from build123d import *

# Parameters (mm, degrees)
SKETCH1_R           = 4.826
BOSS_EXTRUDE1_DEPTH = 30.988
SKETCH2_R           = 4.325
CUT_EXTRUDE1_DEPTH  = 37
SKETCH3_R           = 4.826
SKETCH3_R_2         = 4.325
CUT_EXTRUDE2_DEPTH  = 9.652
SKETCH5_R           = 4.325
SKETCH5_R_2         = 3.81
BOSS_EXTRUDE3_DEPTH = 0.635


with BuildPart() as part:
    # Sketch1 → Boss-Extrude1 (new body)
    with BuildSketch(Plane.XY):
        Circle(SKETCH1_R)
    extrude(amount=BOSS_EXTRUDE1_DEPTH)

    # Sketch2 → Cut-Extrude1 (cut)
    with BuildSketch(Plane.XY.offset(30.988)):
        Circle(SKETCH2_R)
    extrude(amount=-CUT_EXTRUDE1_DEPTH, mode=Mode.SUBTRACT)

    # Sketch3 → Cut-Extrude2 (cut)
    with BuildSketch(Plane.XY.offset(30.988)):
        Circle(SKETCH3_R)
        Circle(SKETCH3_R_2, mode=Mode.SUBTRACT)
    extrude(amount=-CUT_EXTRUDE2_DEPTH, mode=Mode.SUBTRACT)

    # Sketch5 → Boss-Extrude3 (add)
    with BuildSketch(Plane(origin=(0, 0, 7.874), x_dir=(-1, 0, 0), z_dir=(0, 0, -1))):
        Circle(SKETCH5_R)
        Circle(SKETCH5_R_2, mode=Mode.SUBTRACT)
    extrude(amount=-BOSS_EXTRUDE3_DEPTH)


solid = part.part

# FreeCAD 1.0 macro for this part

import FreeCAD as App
import Part
import Sketcher

V = App.Vector
Q = App.Units.Quantity

doc = App.newDocument("Part")
body = doc.addObject("PartDesign::Body", "Body")

sketch1 = doc.addObject("Sketcher::SketchObject", "Sketch")
body.addObject(sketch1)
sketch1.AttachmentSupport = (doc.XY_Plane, [""])
sketch1.MapMode = "FlatFace"
sketch1.addGeometry(Part.Circle(V(0, 0, 0), V(0, 0, 1), 4.826), False)
sketch1.addConstraint(Sketcher.Constraint("Coincident", 0, 3, -1, 1))
sketch1.addConstraint(Sketcher.Constraint("Diameter", 0, Q("0.38 in")))
pad1 = doc.addObject("PartDesign::Pad", "Pad")
body.addObject(pad1)
pad1.Profile = sketch1
pad1.Length = Q("1.22 in")

sketch2 = doc.addObject("Sketcher::SketchObject", "Sketch001")
body.addObject(sketch2)
sketch2.AttachmentSupport = (doc.XY_Plane, [""])
sketch2.MapMode = "FlatFace"
sketch2.AttachmentOffset = App.Placement(V(0, 0, 1.22 * 25.4), App.Rotation())
sketch2.addGeometry(Part.Circle(V(0, 0, 0), V(0, 0, 1), 4.325), False)
sketch2.addConstraint(Sketcher.Constraint("Coincident", 0, 3, -1, 1))
sketch2.addConstraint(Sketcher.Constraint("Diameter", 0, 8.65))
pocket1 = doc.addObject("PartDesign::Pocket", "Pocket")
body.addObject(pocket1)
pocket1.Profile = sketch2
pocket1.Length = 37

sketch3 = doc.addObject("Sketcher::SketchObject", "Sketch002")
body.addObject(sketch3)
sketch3.AttachmentSupport = (doc.XY_Plane, [""])
sketch3.MapMode = "FlatFace"
sketch3.AttachmentOffset = App.Placement(V(0, 0, 1.22 * 25.4), App.Rotation())
sketch3.addGeometry(Part.Circle(V(0, 0, 0), V(0, 0, 1), 4.826), False)
sketch3.addGeometry(Part.Circle(V(0, 0, 0), V(0, 0, 1), 4.325), False)
sketch3.addConstraint(Sketcher.Constraint("Coincident", 0, 3, -1, 1))
sketch3.addConstraint(Sketcher.Constraint("Coincident", 1, 3, -1, 1))
sketch3.addConstraint(Sketcher.Constraint("Diameter", 0, Q("0.38 in")))
sketch3.addConstraint(Sketcher.Constraint("Diameter", 1, 8.65))
pocket2 = doc.addObject("PartDesign::Pocket", "Pocket001")
body.addObject(pocket2)
pocket2.Profile = sketch3
pocket2.Length = Q("0.38 in")

sketch4 = doc.addObject("Sketcher::SketchObject", "Sketch003")
body.addObject(sketch4)
sketch4.AttachmentSupport = (doc.XY_Plane, [""])
sketch4.MapMode = "FlatFace"
sketch4.AttachmentOffset = App.Placement(V(0, 0, 0.31 * 25.4), App.Rotation())
sketch4.addGeometry(Part.Circle(V(0, 0, 0), V(0, 0, 1), 4.325), False)
sketch4.addGeometry(Part.Circle(V(0, 0, 0), V(0, 0, 1), 3.81), False)
sketch4.addConstraint(Sketcher.Constraint("Coincident", 0, 3, -1, 1))
sketch4.addConstraint(Sketcher.Constraint("Coincident", 1, 3, -1, 1))
sketch4.addConstraint(Sketcher.Constraint("Diameter", 1, Q("0.3 in")))
sketch4.addConstraint(Sketcher.Constraint("Diameter", 0, 8.65))
pad2 = doc.addObject("PartDesign::Pad", "Pad001")
body.addObject(pad2)
pad2.Profile = sketch4
pad2.Length = Q("0.025 in")

doc.recompute()
